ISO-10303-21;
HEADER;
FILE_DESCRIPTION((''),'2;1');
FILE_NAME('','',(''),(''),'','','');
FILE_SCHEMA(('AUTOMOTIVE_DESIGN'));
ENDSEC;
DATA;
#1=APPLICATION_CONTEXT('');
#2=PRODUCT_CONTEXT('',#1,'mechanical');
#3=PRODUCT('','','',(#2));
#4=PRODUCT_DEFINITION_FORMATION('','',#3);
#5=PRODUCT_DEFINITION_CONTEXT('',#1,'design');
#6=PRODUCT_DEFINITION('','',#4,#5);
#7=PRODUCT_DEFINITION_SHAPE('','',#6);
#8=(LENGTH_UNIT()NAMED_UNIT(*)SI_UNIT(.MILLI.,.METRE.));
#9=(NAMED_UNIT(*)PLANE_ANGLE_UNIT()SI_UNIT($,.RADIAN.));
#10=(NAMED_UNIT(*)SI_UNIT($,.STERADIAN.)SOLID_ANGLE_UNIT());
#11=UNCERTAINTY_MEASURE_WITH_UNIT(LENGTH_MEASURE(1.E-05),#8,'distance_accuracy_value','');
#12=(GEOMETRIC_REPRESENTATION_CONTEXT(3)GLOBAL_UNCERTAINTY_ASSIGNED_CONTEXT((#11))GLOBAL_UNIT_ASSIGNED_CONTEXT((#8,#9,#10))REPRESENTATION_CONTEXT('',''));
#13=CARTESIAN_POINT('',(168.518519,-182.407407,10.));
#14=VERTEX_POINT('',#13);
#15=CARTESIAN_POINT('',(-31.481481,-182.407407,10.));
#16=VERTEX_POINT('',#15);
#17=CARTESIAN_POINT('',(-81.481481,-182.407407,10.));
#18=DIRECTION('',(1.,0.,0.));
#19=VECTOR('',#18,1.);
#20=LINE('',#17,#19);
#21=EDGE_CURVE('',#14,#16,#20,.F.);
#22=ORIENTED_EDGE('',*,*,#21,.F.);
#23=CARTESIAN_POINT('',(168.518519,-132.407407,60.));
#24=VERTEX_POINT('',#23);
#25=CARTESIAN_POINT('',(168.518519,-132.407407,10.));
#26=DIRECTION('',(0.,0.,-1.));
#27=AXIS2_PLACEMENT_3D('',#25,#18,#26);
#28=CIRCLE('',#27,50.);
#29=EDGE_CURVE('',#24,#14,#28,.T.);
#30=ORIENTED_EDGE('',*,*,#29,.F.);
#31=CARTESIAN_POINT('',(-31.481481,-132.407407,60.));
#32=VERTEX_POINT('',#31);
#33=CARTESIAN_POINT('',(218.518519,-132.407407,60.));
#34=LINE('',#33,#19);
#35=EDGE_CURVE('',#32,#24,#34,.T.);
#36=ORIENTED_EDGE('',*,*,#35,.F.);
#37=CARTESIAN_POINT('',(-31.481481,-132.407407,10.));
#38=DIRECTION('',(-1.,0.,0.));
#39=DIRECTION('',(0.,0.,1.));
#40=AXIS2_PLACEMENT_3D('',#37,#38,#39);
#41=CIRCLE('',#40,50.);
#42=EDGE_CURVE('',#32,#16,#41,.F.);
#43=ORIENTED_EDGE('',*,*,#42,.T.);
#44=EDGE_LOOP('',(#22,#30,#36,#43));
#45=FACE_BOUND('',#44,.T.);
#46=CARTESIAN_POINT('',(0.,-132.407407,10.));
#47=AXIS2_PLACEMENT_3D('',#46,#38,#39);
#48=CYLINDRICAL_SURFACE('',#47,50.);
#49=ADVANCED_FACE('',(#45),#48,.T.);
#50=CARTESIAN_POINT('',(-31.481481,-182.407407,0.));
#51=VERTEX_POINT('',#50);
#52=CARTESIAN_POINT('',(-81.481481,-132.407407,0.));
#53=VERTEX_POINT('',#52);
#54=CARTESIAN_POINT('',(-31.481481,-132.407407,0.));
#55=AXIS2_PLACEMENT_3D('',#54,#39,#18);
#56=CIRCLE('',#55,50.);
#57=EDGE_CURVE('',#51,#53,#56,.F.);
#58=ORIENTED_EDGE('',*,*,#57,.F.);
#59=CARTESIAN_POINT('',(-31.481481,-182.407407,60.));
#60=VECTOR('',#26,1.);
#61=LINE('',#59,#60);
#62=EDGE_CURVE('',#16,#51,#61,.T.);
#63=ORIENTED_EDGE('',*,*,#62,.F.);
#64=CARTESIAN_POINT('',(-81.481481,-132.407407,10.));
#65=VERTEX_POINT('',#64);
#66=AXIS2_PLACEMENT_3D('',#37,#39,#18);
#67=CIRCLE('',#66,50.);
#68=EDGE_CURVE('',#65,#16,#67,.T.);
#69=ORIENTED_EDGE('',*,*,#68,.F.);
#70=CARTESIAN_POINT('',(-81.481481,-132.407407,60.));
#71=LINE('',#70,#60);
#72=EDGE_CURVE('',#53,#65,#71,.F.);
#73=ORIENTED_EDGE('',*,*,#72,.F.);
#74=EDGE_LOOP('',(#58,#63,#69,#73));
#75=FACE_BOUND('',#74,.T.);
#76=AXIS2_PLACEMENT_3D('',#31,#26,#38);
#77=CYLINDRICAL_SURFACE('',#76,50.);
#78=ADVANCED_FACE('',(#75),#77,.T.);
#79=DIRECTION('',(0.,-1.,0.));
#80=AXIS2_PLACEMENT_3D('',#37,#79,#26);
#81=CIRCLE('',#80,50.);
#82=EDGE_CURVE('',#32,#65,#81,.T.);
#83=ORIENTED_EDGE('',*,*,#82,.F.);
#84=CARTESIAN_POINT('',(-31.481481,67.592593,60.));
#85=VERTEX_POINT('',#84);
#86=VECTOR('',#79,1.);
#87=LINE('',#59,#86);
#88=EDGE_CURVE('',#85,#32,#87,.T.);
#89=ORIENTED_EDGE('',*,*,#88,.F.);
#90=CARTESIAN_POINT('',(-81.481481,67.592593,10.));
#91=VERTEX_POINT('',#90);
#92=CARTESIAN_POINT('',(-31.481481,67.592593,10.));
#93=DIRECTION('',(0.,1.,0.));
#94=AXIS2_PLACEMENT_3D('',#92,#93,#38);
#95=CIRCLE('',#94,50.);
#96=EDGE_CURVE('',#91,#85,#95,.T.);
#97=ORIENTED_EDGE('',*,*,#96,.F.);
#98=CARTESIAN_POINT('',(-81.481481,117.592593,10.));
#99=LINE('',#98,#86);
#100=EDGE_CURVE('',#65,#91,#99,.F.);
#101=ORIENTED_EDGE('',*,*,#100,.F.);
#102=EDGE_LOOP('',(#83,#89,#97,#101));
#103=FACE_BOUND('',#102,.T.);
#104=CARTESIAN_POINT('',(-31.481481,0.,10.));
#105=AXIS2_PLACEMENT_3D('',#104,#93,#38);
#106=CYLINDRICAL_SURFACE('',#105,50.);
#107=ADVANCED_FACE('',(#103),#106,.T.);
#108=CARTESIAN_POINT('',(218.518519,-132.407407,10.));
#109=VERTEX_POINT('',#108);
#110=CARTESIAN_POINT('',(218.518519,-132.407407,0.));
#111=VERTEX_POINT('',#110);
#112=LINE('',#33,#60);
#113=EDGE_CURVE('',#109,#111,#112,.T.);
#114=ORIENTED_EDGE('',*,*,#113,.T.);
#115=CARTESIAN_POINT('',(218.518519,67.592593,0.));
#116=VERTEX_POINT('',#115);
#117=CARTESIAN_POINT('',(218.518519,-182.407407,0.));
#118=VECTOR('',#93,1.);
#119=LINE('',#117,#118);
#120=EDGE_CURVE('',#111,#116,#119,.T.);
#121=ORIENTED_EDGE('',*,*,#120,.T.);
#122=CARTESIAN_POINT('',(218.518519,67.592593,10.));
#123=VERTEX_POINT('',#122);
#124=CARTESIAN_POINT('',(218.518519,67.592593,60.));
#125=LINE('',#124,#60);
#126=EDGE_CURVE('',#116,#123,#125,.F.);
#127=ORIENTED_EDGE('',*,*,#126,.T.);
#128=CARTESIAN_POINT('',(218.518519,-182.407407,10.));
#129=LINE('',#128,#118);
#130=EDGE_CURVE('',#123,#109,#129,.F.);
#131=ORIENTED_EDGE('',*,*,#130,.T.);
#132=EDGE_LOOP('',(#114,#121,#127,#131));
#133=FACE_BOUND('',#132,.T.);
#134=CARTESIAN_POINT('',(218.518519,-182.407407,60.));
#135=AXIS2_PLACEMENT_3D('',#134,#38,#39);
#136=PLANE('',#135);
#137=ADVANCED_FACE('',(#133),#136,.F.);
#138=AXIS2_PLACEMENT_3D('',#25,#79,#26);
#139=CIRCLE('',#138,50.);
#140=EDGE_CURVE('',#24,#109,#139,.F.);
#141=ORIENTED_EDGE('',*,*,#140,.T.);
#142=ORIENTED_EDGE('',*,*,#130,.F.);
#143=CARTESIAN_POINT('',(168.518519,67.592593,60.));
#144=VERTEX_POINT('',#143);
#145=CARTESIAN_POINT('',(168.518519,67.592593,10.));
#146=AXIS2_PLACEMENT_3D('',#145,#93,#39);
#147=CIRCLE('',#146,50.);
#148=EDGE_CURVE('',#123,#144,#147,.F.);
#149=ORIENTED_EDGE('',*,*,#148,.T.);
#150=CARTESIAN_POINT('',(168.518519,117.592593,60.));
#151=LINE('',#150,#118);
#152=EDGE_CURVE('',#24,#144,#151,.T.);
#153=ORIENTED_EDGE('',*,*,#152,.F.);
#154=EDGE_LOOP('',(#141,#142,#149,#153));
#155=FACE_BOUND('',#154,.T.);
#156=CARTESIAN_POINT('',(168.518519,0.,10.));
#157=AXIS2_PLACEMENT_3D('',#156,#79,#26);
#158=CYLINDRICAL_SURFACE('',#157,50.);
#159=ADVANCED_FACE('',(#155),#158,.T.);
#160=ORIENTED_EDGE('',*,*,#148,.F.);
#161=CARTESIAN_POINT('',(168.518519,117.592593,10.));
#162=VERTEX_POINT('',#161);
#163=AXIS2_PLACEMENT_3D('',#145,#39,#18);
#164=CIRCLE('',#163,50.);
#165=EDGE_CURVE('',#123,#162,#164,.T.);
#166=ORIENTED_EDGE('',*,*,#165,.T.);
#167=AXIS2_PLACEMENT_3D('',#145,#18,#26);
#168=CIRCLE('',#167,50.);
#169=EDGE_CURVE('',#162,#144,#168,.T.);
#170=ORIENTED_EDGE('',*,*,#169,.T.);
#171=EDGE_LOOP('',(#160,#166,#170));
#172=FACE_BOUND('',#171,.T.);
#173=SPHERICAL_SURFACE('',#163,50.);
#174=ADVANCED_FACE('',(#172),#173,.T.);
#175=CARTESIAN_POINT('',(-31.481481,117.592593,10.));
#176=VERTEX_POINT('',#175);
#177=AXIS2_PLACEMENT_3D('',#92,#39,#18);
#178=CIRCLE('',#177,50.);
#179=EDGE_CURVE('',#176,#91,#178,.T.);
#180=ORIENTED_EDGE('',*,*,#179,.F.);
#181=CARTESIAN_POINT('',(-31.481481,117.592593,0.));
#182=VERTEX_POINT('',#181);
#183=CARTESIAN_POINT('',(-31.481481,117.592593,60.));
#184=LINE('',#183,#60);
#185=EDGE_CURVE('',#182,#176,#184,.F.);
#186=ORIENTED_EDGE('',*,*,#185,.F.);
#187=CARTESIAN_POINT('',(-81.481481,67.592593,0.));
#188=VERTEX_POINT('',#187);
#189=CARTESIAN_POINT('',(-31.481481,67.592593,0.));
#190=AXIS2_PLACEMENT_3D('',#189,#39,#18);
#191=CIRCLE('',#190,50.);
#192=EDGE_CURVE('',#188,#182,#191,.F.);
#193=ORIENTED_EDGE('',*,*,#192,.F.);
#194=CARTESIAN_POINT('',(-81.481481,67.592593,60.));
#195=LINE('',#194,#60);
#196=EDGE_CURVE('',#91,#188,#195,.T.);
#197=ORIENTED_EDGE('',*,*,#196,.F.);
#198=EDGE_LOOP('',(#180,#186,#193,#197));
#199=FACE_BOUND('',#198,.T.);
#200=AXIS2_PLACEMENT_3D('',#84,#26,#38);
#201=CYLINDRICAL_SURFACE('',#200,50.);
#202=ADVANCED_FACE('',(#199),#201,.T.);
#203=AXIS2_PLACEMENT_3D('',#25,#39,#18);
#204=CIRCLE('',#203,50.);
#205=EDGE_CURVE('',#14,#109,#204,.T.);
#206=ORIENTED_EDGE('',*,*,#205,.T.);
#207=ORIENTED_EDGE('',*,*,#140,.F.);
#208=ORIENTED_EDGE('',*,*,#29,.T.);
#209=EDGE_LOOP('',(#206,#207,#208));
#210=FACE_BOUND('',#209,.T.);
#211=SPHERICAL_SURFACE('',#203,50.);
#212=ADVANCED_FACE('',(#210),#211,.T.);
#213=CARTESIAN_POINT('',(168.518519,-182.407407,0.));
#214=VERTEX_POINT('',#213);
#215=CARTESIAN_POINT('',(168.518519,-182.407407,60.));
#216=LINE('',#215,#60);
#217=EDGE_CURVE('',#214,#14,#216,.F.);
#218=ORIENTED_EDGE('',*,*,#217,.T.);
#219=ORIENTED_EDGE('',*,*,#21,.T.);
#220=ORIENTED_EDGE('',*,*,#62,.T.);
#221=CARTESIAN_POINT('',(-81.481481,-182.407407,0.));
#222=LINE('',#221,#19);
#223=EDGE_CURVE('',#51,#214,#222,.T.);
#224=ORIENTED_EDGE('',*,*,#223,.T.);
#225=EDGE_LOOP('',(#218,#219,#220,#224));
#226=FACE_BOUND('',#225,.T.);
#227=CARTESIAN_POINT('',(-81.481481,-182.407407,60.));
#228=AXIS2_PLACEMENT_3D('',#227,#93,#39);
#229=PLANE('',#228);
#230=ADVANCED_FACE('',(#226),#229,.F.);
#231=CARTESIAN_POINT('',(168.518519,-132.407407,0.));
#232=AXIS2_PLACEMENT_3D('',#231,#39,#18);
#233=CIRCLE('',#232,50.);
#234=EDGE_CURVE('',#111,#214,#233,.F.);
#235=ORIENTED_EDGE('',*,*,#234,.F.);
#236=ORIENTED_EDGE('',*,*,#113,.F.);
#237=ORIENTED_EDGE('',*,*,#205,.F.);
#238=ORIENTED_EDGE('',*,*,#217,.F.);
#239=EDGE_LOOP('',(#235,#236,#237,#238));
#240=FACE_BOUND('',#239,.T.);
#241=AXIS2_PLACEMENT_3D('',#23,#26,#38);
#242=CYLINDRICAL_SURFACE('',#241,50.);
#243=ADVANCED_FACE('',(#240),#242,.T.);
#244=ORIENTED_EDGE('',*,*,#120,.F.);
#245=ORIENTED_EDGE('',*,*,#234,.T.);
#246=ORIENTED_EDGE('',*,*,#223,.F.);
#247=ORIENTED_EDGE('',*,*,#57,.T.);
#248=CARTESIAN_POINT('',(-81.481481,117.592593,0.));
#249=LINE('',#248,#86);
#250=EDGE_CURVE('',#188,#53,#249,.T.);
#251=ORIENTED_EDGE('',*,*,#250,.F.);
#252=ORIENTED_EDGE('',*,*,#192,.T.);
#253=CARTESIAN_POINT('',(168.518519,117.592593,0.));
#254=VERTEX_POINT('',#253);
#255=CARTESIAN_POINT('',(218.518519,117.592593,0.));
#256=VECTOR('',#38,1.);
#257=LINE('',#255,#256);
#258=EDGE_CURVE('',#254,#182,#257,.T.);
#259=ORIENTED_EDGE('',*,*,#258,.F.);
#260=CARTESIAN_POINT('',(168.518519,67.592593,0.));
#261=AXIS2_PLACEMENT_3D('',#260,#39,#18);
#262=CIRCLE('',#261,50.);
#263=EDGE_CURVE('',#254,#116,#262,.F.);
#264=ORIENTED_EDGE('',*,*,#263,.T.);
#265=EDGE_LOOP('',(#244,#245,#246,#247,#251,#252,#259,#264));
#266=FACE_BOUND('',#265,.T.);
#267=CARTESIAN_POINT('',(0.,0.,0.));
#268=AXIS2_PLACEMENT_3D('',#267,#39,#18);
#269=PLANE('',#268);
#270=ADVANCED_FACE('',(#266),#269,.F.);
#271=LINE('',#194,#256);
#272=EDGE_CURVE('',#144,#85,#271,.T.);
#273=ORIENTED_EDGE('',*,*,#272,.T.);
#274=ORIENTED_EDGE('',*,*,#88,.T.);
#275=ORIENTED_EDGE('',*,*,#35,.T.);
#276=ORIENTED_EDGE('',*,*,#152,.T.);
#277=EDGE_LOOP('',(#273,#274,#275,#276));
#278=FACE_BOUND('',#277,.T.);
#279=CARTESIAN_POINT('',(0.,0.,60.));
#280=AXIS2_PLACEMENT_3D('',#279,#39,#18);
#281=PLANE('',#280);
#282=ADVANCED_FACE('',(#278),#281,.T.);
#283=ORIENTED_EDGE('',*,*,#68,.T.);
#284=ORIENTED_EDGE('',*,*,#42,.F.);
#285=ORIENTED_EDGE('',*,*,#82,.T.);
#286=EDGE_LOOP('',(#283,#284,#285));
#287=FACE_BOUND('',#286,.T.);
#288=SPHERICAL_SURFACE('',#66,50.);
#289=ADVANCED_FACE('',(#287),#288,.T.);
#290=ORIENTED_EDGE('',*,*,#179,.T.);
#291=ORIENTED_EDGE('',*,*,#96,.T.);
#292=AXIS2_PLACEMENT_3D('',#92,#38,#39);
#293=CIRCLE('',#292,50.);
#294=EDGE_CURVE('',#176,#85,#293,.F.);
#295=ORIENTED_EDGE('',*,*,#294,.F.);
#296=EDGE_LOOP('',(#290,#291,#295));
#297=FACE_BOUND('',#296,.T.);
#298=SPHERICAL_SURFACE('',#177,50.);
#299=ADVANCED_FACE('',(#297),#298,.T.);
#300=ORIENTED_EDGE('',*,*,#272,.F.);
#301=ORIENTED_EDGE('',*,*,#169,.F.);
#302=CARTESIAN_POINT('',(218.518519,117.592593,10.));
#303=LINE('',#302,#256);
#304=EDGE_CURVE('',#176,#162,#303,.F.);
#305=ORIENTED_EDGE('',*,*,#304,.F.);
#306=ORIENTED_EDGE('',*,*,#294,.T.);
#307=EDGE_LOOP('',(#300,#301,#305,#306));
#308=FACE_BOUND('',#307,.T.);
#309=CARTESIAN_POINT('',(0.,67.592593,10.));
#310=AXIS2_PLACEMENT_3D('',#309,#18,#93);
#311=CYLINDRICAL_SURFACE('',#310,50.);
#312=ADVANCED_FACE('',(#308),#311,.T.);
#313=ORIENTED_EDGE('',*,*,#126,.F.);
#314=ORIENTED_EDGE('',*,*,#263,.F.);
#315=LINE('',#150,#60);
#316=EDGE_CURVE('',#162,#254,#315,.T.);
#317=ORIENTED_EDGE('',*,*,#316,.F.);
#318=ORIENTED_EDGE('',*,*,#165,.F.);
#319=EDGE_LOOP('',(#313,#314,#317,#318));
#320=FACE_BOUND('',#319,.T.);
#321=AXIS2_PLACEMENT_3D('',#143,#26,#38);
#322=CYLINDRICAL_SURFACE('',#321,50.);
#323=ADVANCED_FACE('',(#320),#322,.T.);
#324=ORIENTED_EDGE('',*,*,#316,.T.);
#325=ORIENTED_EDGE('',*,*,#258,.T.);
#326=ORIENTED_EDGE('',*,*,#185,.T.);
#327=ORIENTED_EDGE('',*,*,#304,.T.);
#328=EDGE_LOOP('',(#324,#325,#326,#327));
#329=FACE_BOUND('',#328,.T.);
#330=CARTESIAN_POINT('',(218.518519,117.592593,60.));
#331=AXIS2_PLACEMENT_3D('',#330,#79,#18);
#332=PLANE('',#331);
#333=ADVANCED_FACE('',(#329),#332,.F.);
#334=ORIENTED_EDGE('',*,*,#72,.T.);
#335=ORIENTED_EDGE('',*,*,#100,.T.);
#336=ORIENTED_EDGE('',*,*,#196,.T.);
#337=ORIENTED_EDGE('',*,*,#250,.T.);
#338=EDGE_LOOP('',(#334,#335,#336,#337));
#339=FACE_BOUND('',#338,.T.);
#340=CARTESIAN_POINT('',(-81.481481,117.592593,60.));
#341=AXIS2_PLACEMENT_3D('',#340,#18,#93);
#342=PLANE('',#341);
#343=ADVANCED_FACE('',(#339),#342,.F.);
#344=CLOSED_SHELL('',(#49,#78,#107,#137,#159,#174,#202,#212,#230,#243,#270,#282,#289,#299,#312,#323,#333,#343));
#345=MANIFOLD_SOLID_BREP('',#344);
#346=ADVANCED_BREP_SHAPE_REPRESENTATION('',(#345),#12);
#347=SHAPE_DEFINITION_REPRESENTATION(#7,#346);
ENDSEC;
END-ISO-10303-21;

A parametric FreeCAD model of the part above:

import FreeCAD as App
import Part
import Sketcher
from FreeCAD import Vector


def edges_at(feature, points):
    """Names of the edges that pass closest to the given points."""
    edges = feature.Shape.Edges
    near = lambda p: min(range(len(edges)), key=lambda i: edges[i].distToShape(Part.Vertex(*p))[0])
    return sorted({f"Edge{near(p) + 1}" for p in points})


def add_polygon(sketch, points):
    """Adds a closed chain of lines whose ends are joined by coincident constraints."""
    first, n = sketch.GeometryCount, len(points)
    for a, b in zip(points, points[1:] + points[:1]):
        sketch.addGeometry(Part.LineSegment(App.Vector(*a, 0), App.Vector(*b, 0)), False)
    for i in range(n):
        sketch.addConstraint(Sketcher.Constraint("Coincident", first + i, 2, first + (i + 1) % n, 1))

doc = App.newDocument("Part")
params = doc.addObject("Spreadsheet::Sheet", "Params")
for row, (alias, value) in enumerate([
    ("sketch1_width", "300 mm"),
    ("pad1_length", "60 mm"),
    ("fillet_radius", "50 mm"),
], start=1):
    params.set(f"A{row}", alias)
    params.set(f"B{row}", "=" + value)
    params.setAlias(f"B{row}", alias)

body = doc.addObject("PartDesign::Body", "Body")

# Sketch on XY plane
sketch1 = body.newObject("Sketcher::SketchObject", "Sketch")
sketch1.AttachmentSupport = (doc.getObject("XY_Plane"), [""])
sketch1.MapMode = "FlatFace"
add_polygon(sketch1, [(-81.481481, 117.592593), (-81.481481, -182.407407), (218.518519, -182.407407), (218.518519, 117.592593)])  # lines 0-3
sketch1.addConstraint(Sketcher.Constraint("Vertical", 0))
sketch1.addConstraint(Sketcher.Constraint("Horizontal", 1))
sketch1.addConstraint(Sketcher.Constraint("Vertical", 2))
sketch1.addConstraint(Sketcher.Constraint("Horizontal", 3))
sketch1.addConstraint(Sketcher.Constraint("Equal", 3, 0))
sketch1.addConstraint(Sketcher.Constraint("DistanceX", 1, 1, 1, 2, 300.0))
sketch1.addConstraint(Sketcher.Constraint("DistanceX", 0, 2, -1, 1, 81.481481))
sketch1.addConstraint(Sketcher.Constraint("DistanceY", 0, 2, -1, 1, 182.407407))
sketch1.setExpression("Constraints[9]", "Params.sketch1_width")
pad1 = body.newObject("PartDesign::Pad", "Pad")
pad1.Profile = sketch1
pad1.setExpression("Length", "Params.pad1_length")
doc.recompute()

fillet = body.newObject("PartDesign::Fillet", "Fillet")
fillet.Base = (pad1, edges_at(pad1, [
    (68.519, -182.407, 60),
    (218.519, -32.407, 60),
    (68.519, 117.593, 60),
    (218.519, 117.593, 30),
    (218.519, -182.407, 30),
    (-81.481, -182.407, 30),
    (-81.481, 117.593, 30),
    (-81.481, -32.407, 60),
]))
fillet.setExpression("Radius", "Params.fillet_radius")

doc.recompute()
